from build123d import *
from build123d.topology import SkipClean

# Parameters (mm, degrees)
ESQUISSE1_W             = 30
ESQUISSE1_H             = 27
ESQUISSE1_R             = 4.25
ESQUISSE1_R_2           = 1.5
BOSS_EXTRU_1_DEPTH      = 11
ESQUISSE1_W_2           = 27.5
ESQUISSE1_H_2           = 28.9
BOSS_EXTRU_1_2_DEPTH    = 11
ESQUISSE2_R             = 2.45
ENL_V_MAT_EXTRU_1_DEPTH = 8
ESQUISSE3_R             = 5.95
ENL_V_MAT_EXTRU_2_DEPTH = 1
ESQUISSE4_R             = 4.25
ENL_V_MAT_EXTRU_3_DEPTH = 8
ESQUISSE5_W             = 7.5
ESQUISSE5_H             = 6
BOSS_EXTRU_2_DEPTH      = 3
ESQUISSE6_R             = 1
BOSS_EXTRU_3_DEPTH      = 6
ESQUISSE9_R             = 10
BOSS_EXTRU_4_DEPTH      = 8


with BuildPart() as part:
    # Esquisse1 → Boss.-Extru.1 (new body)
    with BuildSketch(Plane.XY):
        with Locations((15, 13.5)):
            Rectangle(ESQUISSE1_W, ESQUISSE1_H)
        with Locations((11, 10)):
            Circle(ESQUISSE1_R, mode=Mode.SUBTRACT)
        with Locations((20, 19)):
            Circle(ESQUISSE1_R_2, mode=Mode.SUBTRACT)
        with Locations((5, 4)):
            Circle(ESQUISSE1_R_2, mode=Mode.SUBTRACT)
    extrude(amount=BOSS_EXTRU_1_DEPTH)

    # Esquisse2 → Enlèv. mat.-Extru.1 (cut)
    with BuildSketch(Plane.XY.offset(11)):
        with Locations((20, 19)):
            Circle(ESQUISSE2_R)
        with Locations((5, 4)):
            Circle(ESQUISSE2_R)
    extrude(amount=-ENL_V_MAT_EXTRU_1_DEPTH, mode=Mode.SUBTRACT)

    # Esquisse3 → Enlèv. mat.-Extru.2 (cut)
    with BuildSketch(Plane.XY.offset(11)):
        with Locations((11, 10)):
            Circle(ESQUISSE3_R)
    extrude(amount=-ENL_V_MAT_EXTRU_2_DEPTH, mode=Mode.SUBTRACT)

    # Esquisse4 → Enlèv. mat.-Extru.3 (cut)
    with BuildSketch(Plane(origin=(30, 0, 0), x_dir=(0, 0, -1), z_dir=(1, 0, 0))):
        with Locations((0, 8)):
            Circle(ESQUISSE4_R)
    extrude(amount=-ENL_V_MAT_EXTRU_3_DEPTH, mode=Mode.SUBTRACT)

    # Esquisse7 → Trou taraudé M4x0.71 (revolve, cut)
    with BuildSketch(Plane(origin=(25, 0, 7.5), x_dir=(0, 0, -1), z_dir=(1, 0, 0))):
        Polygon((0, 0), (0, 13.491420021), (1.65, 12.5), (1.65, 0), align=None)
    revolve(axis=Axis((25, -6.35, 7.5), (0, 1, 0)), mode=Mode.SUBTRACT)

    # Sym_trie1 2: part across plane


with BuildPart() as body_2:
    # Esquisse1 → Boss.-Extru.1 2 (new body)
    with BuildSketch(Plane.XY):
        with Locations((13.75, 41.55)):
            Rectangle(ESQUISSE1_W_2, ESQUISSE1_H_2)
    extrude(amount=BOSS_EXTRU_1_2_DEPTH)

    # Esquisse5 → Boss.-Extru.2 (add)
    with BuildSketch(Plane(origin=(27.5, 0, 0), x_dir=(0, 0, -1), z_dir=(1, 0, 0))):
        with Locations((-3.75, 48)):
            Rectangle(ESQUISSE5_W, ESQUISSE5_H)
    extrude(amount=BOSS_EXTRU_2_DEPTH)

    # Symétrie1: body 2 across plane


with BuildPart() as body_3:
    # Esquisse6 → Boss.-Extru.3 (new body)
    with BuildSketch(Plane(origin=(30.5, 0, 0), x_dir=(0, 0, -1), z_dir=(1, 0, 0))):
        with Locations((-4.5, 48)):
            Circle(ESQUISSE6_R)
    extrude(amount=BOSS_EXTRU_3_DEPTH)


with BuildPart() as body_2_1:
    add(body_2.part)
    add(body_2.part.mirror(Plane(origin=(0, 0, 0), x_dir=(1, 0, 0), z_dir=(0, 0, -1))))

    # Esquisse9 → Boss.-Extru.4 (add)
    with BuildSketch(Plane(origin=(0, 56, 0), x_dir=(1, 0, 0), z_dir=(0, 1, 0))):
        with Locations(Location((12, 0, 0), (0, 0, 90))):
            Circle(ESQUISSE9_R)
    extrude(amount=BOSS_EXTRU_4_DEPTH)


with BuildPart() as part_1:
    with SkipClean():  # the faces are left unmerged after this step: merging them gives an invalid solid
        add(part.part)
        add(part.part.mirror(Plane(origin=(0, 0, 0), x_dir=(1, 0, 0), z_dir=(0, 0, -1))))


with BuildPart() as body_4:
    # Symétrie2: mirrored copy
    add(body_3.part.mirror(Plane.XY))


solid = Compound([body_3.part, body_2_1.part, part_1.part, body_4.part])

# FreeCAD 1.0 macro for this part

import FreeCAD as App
import Part
import Sketcher

V = App.Vector
Q = App.Units.Quantity


def add_polygon(sketch, points):
    """Adds a closed chain of lines whose ends are joined by coincident constraints."""
    first, n = sketch.GeometryCount, len(points)
    for a, b in zip(points, points[1:] + points[:1]):
        sketch.addGeometry(Part.LineSegment(App.Vector(*a, 0), App.Vector(*b, 0)), False)
    for i in range(n):
        sketch.addConstraint(Sketcher.Constraint("Coincident", first + i, 2, first + (i + 1) % n, 1))

doc = App.newDocument("Part")
params = doc.addObject("Spreadsheet::Sheet", "Params")
for row, (alias, value) in enumerate([
    ("sketch1_diameter", "3 mm"),
    ("sketch1_diameter2", "8.5 mm"),
    ("sketch1_width", "30 mm"),
    ("sketch1_height", "27 mm"),
    ("pad1_length", "11 mm"),
    ("sketch2_diameter", "4.9 mm"),
    ("pocket1_length", "8 mm"),
    ("sketch3_diameter", "11.9 mm"),
    ("pocket2_length", "1 mm"),
    ("sketch4_diameter", "8.5 mm"),
    ("pocket3_length", "8 mm"),
    ("sketch5_width", "12.5 mm"),
    ("sketch5_height", "1.65 mm"),
    ("groove_angle", "360 deg"),
    ("sketch6_width", "27.5 mm"),
    ("sketch6_height", "28.9 mm"),
    ("pad2_length", "11 mm"),
    ("sketch7_width", "6 mm"),
    ("sketch7_height", "7.5 mm"),
    ("pad3_length", "3 mm"),
    ("sketch8_diameter", "2 mm"),
    ("pad4_length", "6 mm"),
    ("sketch9_diameter", "20 mm"),
    ("pad5_length", "8 mm"),
], start=1):
    params.set(f"A{row}", alias)
    params.set(f"B{row}", "=" + value)
    params.setAlias(f"B{row}", alias)

body = doc.addObject("PartDesign::Body", "Body")

# Sketch on XY plane
sketch1 = body.newObject("Sketcher::SketchObject", "Sketch")
sketch1.AttachmentSupport = (doc.getObject("XY_Plane"), [""])
sketch1.MapMode = "FlatFace"
add_polygon(sketch1, [(0, 27), (0, 0), (30, 0), (30, 27)])  # lines 0-3
sketch1.addGeometry(Part.Circle(V(5, 4, 0), V(0, 0, 1), 1.5), False)  # 4
sketch1.addGeometry(Part.Circle(V(11, 10, 0), V(0, 0, 1), 4.2), False)  # 5
sketch1.addGeometry(Part.Circle(V(20, 19, 0), V(0, 0, 1), 1.5), False)  # 6
sketch1.addConstraint([
    Sketcher.Constraint("Vertical", 0),
    Sketcher.Constraint("Horizontal", 1),
    Sketcher.Constraint("Vertical", 2),
    Sketcher.Constraint("Horizontal", 3),
    Sketcher.Constraint("Coincident", 0, 2, -1, 1),
    Sketcher.Constraint("Equal", 4, 6),
    Sketcher.Constraint("Diameter", 4, Q("3 mm")),
    Sketcher.Constraint("Diameter", 5, Q("8.5 mm")),
    Sketcher.Constraint("DistanceX", 1, 1, 1, 2, Q("30 mm")),
    Sketcher.Constraint("DistanceY", 0, 2, 0, 1, Q("27 mm")),
    Sketcher.Constraint("DistanceX", -1, 1, 4, 3, Q("5 mm")),
    Sketcher.Constraint("DistanceY", -1, 1, 4, 3, Q("4 mm")),
    Sketcher.Constraint("DistanceX", -1, 1, 5, 3, Q("11 mm")),
    Sketcher.Constraint("DistanceY", -1, 1, 5, 3, Q("10 mm")),
    Sketcher.Constraint("DistanceX", -1, 1, 6, 3, Q("20 mm")),
    Sketcher.Constraint("DistanceY", -1, 1, 6, 3, Q("19 mm")),
])
sketch1.setExpression("Constraints[10]", "Params.sketch1_diameter")
sketch1.setExpression("Constraints[11]", "Params.sketch1_diameter2")
sketch1.setExpression("Constraints[12]", "Params.sketch1_width")
sketch1.setExpression("Constraints[13]", "Params.sketch1_height")
pad1 = body.newObject("PartDesign::Pad", "Pad")
pad1.Profile = sketch1
pad1.setExpression("Length", "Params.pad1_length")

# Sketch on XY plane
sketch2 = body.newObject("Sketcher::SketchObject", "Sketch001")
sketch2.AttachmentSupport = (doc.getObject("XY_Plane"), [""])
sketch2.MapMode = "FlatFace"
sketch2.AttachmentOffset = App.Placement(V(0, 0, 11), App.Rotation())
sketch2.addGeometry([
    Part.Circle(V(20, 19, 0), V(0, 0, 1), 2.5),
    Part.Circle(V(5, 4, 0), V(0, 0, 1), 2.5),
], False)
sketch2.addConstraint([
    Sketcher.Constraint("Equal", 0, 1),
    Sketcher.Constraint("Diameter", 0, Q("4.9 mm")),
    Sketcher.Constraint("DistanceX", -1, 1, 0, 3, Q("20 mm")),
    Sketcher.Constraint("DistanceY", -1, 1, 0, 3, Q("19 mm")),
    Sketcher.Constraint("DistanceX", -1, 1, 1, 3, Q("5 mm")),
    Sketcher.Constraint("DistanceY", -1, 1, 1, 3, Q("4 mm")),
])
sketch2.setExpression("Constraints[1]", "Params.sketch2_diameter")
pocket1 = body.newObject("PartDesign::Pocket", "Pocket")
pocket1.Profile = sketch2
pocket1.setExpression("Length", "Params.pocket1_length")

# Sketch on XY plane
sketch3 = body.newObject("Sketcher::SketchObject", "Sketch002")
sketch3.AttachmentSupport = (doc.getObject("XY_Plane"), [""])
sketch3.MapMode = "FlatFace"
sketch3.AttachmentOffset = App.Placement(V(0, 0, 11), App.Rotation())
sketch3.addGeometry(Part.Circle(V(11, 10, 0), V(0, 0, 1), 6), False)
sketch3.addConstraint([
    Sketcher.Constraint("Diameter", 0, Q("11.9 mm")),
    Sketcher.Constraint("DistanceX", -1, 1, 0, 3, Q("11 mm")),
    Sketcher.Constraint("DistanceY", -1, 1, 0, 3, Q("10 mm")),
])
sketch3.setExpression("Constraints[0]", "Params.sketch3_diameter")
pocket2 = body.newObject("PartDesign::Pocket", "Pocket001")
pocket2.Profile = sketch3
pocket2.setExpression("Length", "Params.pocket2_length")

# Sketch on YZ plane
sketch4 = body.newObject("Sketcher::SketchObject", "Sketch003")
sketch4.AttachmentSupport = (doc.getObject("YZ_Plane"), [""])
sketch4.MapMode = "FlatFace"
sketch4.AttachmentOffset = App.Placement(V(0, 0, 30), App.Rotation())
sketch4.addGeometry(Part.Circle(V(8, 0, 0), V(0, 0, 1), 4.2), False)
sketch4.addConstraint([
    Sketcher.Constraint("PointOnObject", 0, 3, -1),
    Sketcher.Constraint("Diameter", 0, Q("8.5 mm")),
    Sketcher.Constraint("DistanceX", -1, 1, 0, 3, Q("8 mm")),
])
sketch4.setExpression("Constraints[1]", "Params.sketch4_diameter")
pocket3 = body.newObject("PartDesign::Pocket", "Pocket002")
pocket3.Profile = sketch4
pocket3.setExpression("Length", "Params.pocket3_length")

# Sketch on YZ plane
sketch5 = body.newObject("Sketcher::SketchObject", "Sketch004")
sketch5.AttachmentSupport = (doc.getObject("YZ_Plane"), [""])
sketch5.MapMode = "FlatFace"
sketch5.AttachmentOffset = App.Placement(V(0, 0, 25), App.Rotation())
add_polygon(sketch5, [(13.5, 7.5), (0, 7.5), (0, 5.8), (12.5, 5.8)])  # lines 0-3
sketch5.addGeometry(Part.LineSegment(V(0, 7.5, 0), V(13.5, 7.5, 0)), True)  # axis
sketch5.addConstraint([
    Sketcher.Constraint("Horizontal", 0),
    Sketcher.Constraint("Vertical", 1),
    Sketcher.Constraint("Horizontal", 2),
    Sketcher.Constraint("Horizontal", 4),
    Sketcher.Constraint("Coincident", 4, 1, 0, 2),
    Sketcher.Constraint("PointOnObject", 0, 2, -2),
    Sketcher.Constraint("Equal", 0, 4),
    Sketcher.Constraint("Angle", 3, Q("59 deg")),
    Sketcher.Constraint("DistanceX", 2, 1, 2, 2, Q("12.5 mm")),
    Sketcher.Constraint("DistanceY", 1, 2, 1, 1, Q("1.65 mm")),
    Sketcher.Constraint("DistanceY", -1, 1, 0, 2, Q("7.5 mm")),
])
sketch5.setExpression("Constraints[12]", "Params.sketch5_width")
sketch5.setExpression("Constraints[13]", "Params.sketch5_height")
groove = body.newObject("PartDesign::Groove", "Groove")
groove.Profile = sketch5
groove.ReferenceAxis = (sketch5, ["Axis0"])
groove.setExpression("Angle", "Params.groove_angle")
body2 = doc.addObject("PartDesign::Body", "Body001")

# Sketch on XY plane
sketch6 = body2.newObject("Sketcher::SketchObject", "Sketch005")
sketch6.AttachmentSupport = (doc.getObject("XY_Plane001"), [""])
sketch6.MapMode = "FlatFace"
add_polygon(sketch6, [(0, 56), (0, 27), (28, 27), (28, 56)])  # lines 0-3
sketch6.addConstraint([
    Sketcher.Constraint("Vertical", 0),
    Sketcher.Constraint("Horizontal", 1),
    Sketcher.Constraint("Vertical", 2),
    Sketcher.Constraint("Horizontal", 3),
    Sketcher.Constraint("PointOnObject", 0, 2, -2),
    Sketcher.Constraint("DistanceX", 1, 1, 1, 2, Q("27.5 mm")),
    Sketcher.Constraint("DistanceY", 0, 2, 0, 1, Q("28.9 mm")),
    Sketcher.Constraint("DistanceY", -1, 1, 2, 2, Q("56 mm")),
])
sketch6.setExpression("Constraints[9]", "Params.sketch6_width")
sketch6.setExpression("Constraints[10]", "Params.sketch6_height")
pad2 = body2.newObject("PartDesign::Pad", "Pad001")
pad2.Profile = sketch6
pad2.setExpression("Length", "Params.pad2_length")

# Sketch on YZ plane
sketch7 = body2.newObject("Sketcher::SketchObject", "Sketch006")
sketch7.AttachmentSupport = (doc.getObject("YZ_Plane001"), [""])
sketch7.MapMode = "FlatFace"
sketch7.AttachmentOffset = App.Placement(V(0, 0, 27.5), App.Rotation())
add_polygon(sketch7, [(51, 8), (45, 8), (45, 0), (51, 0)])  # lines 0-3
sketch7.addConstraint([
    Sketcher.Constraint("Horizontal", 0),
    Sketcher.Constraint("Vertical", 1),
    Sketcher.Constraint("Horizontal", 2),
    Sketcher.Constraint("Vertical", 3),
    Sketcher.Constraint("PointOnObject", 1, 2, -1),
    Sketcher.Constraint("DistanceX", 0, 2, 0, 1, Q("6 mm")),
    Sketcher.Constraint("DistanceY", 1, 2, 1, 1, Q("7.5 mm")),
    Sketcher.Constraint("DistanceX", -1, 1, 0, 2, Q("45 mm")),
])
sketch7.setExpression("Constraints[9]", "Params.sketch7_width")
sketch7.setExpression("Constraints[10]", "Params.sketch7_height")
pad3 = body2.newObject("PartDesign::Pad", "Pad002")
pad3.Profile = sketch7
pad3.setExpression("Length", "Params.pad3_length")
body3 = doc.addObject("PartDesign::Body", "Body002")

# Sketch on YZ plane
sketch8 = body3.newObject("Sketcher::SketchObject", "Sketch007")
sketch8.AttachmentSupport = (doc.getObject("YZ_Plane002"), [""])
sketch8.MapMode = "FlatFace"
sketch8.AttachmentOffset = App.Placement(V(0, 0, 30.5), App.Rotation())
sketch8.addGeometry(Part.Circle(V(48, 4.5, 0), V(0, 0, 1), 1), False)
sketch8.addConstraint([
    Sketcher.Constraint("Diameter", 0, Q("2 mm")),
    Sketcher.Constraint("DistanceX", -1, 1, 0, 3, Q("48 mm")),
    Sketcher.Constraint("DistanceY", -1, 1, 0, 3, Q("4.5 mm")),
])
sketch8.setExpression("Constraints[0]", "Params.sketch8_diameter")
pad4 = body3.newObject("PartDesign::Pad", "Pad003")
pad4.Profile = sketch8
pad4.setExpression("Length", "Params.pad4_length")
body4 = doc.addObject("PartDesign::Body", "Body003")
doc.recompute()

body4.BaseFeature = body2
doc.recompute()

mirroring = doc.addObject("Part::Mirroring", "Mirroring")
mirroring.Source = body2
mirroring.Base = V(0, 0, 0)
mirroring.Normal = V(0, 0, -1)
body5 = doc.addObject("PartDesign::Body", "Body004")
body5.BaseFeature = mirroring
boolean = body4.newObject("PartDesign::Boolean", "Boolean")
boolean.Type = "Fuse"
boolean.addObjects([body5])
doc.recompute()

# Sketch on XZ plane
sketch9 = body4.newObject("Sketcher::SketchObject", "Sketch008")
sketch9.AttachmentSupport = (doc.getObject("XZ_Plane003"), [""])
sketch9.MapMode = "FlatFace"
sketch9.AttachmentOffset = App.Placement(V(0, 0, -56), App.Rotation())
sketch9.addGeometry(Part.Circle(V(12, 0, 0), V(0, 0, 1), 10), False)
sketch9.addConstraint([
    Sketcher.Constraint("PointOnObject", 0, 3, -1),
    Sketcher.Constraint("Diameter", 0, Q("20 mm")),
    Sketcher.Constraint("DistanceX", -1, 1, 0, 3, Q("12 mm")),
])
sketch9.setExpression("Constraints[1]", "Params.sketch9_diameter")
pad5 = body4.newObject("PartDesign::Pad", "Pad004")
pad5.Profile = sketch9
pad5.setExpression("Length", "Params.pad5_length")
pad5.Reversed = True
body6 = doc.addObject("PartDesign::Body", "Body005")
doc.recompute()

body6.BaseFeature = body
doc.recompute()

mirroring2 = doc.addObject("Part::Mirroring", "Mirroring001")
mirroring2.Source = body
mirroring2.Base = V(0, 0, 0)
mirroring2.Normal = V(0, 0, -1)
body7 = doc.addObject("PartDesign::Body", "Body006")
body7.BaseFeature = mirroring2
boolean2 = body6.newObject("PartDesign::Boolean", "Boolean001")
boolean2.Type = "Fuse"
boolean2.addObjects([body7])
doc.recompute()
body8 = doc.addObject("PartDesign::Body", "Body007")
doc.recompute()

mirroring3 = doc.addObject("Part::Mirroring", "Mirroring002")
mirroring3.Source = body3
mirroring3.Base = V(0, 0, 0)
mirroring3.Normal = V(0, 0, 1)
body8.BaseFeature = mirroring3
doc.recompute()
mirroring.Visibility = False
mirroring2.Visibility = False
mirroring3.Visibility = False

doc.recompute()
